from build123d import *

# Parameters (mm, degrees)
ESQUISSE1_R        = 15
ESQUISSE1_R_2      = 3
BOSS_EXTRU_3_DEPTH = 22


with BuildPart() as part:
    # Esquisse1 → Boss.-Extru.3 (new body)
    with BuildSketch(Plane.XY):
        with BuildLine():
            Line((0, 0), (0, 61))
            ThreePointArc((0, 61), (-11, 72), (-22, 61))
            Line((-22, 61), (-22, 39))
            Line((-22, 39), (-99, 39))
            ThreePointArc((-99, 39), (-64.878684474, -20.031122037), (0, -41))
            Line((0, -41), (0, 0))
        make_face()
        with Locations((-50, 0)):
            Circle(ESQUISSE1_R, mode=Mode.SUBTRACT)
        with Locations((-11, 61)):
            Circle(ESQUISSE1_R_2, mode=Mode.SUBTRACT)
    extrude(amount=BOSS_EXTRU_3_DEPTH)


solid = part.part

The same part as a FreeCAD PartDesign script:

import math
import FreeCAD as App
import Part
import Sketcher

V = App.Vector

doc = App.newDocument("Part")
body = doc.addObject("PartDesign::Body", "Body")

sketch1 = doc.addObject("Sketcher::SketchObject", "Sketch")
body.addObject(sketch1)
sketch1.AttachmentSupport = (doc.XY_Plane, [""])
sketch1.MapMode = "FlatFace"
sketch1.addGeometry([
    Part.ArcOfCircle(Part.Circle(V(-11, 61, 0), V(0, 0, 1), 11), math.radians(0), math.radians(180)),
    Part.LineSegment(V(-22, 61, 0), V(-22, 39, 0)),
    Part.LineSegment(V(-22, 39, 0), V(-99, 39, 0)),
    Part.ArcOfCircle(Part.Circle(V(-5.2, 53.9, 0), V(0, 0, 1), 95), math.radians(-171), math.radians(-87)),
    Part.LineSegment(V(0, -41, 0), V(0, 61, 0)),
    Part.Circle(V(-50, 0, 0), V(0, 0, 1), 15),
    Part.Circle(V(-11, 61, 0), V(0, 0, 1), 3),
], False)
sketch1.addConstraint([
    Sketcher.Constraint("Tangent", 0, 2, 1, 1),
    Sketcher.Constraint("Coincident", 1, 2, 2, 1),
    Sketcher.Constraint("Coincident", 2, 2, 3, 1),
    Sketcher.Constraint("Coincident", 3, 2, 4, 1),
    Sketcher.Constraint("Tangent", 4, 2, 0, 1),
    Sketcher.Constraint("Vertical", 1),
    Sketcher.Constraint("Horizontal", 2),
    Sketcher.Constraint("Vertical", 4),
    Sketcher.Constraint("Coincident", 6, 3, 0, 3),
    Sketcher.Constraint("PointOnObject", 5, 3, -1),
    Sketcher.Constraint("PointOnObject", 3, 2, -2),
    Sketcher.Constraint("Diameter", 5, 30.0),
    Sketcher.Constraint("Diameter", 6, 6.0),
    Sketcher.Constraint("Radius", 0, 11.0),
    Sketcher.Constraint("Radius", 3, 95.0),
    Sketcher.Constraint("DistanceX", 2, 2, 2, 1, 77.0),
    Sketcher.Constraint("DistanceY", 1, 2, 1, 1, 22.0),
    Sketcher.Constraint("DistanceY", 4, 1, 4, 2, 102.0),
    Sketcher.Constraint("DistanceY", -1, 1, 0, 3, 61.0),
    Sketcher.Constraint("DistanceX", 5, 3, -1, 1, 50.0),
])
pad1 = doc.addObject("PartDesign::Pad", "Pad")
body.addObject(pad1)
pad1.Profile = sketch1
pad1.Length = 22

doc.recompute()
